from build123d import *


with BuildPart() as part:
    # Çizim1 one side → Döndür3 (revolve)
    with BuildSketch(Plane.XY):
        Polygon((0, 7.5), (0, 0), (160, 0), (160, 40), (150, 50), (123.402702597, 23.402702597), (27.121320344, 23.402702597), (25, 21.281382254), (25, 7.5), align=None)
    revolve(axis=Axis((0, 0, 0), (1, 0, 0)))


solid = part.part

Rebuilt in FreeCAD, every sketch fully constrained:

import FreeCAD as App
import Part
import Sketcher

V = App.Vector
Q = App.Units.Quantity


def add_polygon(sketch, points):
    """Adds a closed chain of lines whose ends are joined by coincident constraints."""
    first, n = sketch.GeometryCount, len(points)
    for a, b in zip(points, points[1:] + points[:1]):
        sketch.addGeometry(Part.LineSegment(App.Vector(*a, 0), App.Vector(*b, 0)), False)
    for i in range(n):
        sketch.addConstraint(Sketcher.Constraint("Coincident", first + i, 2, first + (i + 1) % n, 1))

doc = App.newDocument("Part")
params = doc.addObject("Spreadsheet::Sheet", "Params")
for row, (alias, value) in enumerate([
    ("sketch1_width", "160 mm"),
    ("sketch1_width2", "25 mm"),
    ("sketch1_height", "40 mm"),
    ("sketch1_length", "3 mm"),
    ("sketch1_height2", "7.5 mm"),
    ("revolution_angle", "360 deg"),
], start=1):
    params.set(f"A{row}", alias)
    params.set(f"B{row}", "=" + value)
    params.setAlias(f"B{row}", alias)

body = doc.addObject("PartDesign::Body", "Body")

# Sketch on XY plane
sketch1 = body.newObject("Sketcher::SketchObject", "Sketch")
sketch1.AttachmentSupport = (doc.getObject("XY_Plane"), [""])
sketch1.MapMode = "FlatFace"
add_polygon(sketch1, [(0, 7.5), (0, 0), (160, 0), (160, 40), (150, 50), (123.4, 23.4), (27.1, 23.4), (25, 21.3), (25, 7.5)])  # lines 0-8
sketch1.addConstraint([
    Sketcher.Constraint("Vertical", 0),
    Sketcher.Constraint("Horizontal", 1),
    Sketcher.Constraint("Vertical", 2),
    Sketcher.Constraint("Horizontal", 5),
    Sketcher.Constraint("Vertical", 7),
    Sketcher.Constraint("Horizontal", 8),
    Sketcher.Constraint("Coincident", 0, 2, -1, 1),
    Sketcher.Constraint("Perpendicular", 3, 4),
    Sketcher.Constraint("Parallel", 4, 6),
    Sketcher.Constraint("DistanceX", 1, 1, 1, 2, 160.0),
    Sketcher.Constraint("DistanceX", 8, 2, 8, 1, 25.0),
    Sketcher.Constraint("DistanceY", 2, 1, 2, 2, 40.0),
    Sketcher.Constraint("Angle", 3, Q("135 deg")),
    Sketcher.Constraint("Distance", 6, 3.0),
    Sketcher.Constraint("DistanceY", 0, 2, 0, 1, 7.5),
    Sketcher.Constraint("DistanceX", -1, 1, 3, 2, 150.0),
    Sketcher.Constraint("Distance", 4, 37.614259),
])
sketch1.setExpression("Constraints[18]", "Params.sketch1_width")
sketch1.setExpression("Constraints[19]", "Params.sketch1_width2")
sketch1.setExpression("Constraints[20]", "Params.sketch1_height")
sketch1.setExpression("Constraints[22]", "Params.sketch1_length")
sketch1.setExpression("Constraints[23]", "Params.sketch1_height2")
revolution = body.newObject("PartDesign::Revolution", "Revolution")
revolution.Profile = sketch1
revolution.ReferenceAxis = (sketch1, ["H_Axis"])
revolution.setExpression("Angle", "Params.revolution_angle")

doc.recompute()
